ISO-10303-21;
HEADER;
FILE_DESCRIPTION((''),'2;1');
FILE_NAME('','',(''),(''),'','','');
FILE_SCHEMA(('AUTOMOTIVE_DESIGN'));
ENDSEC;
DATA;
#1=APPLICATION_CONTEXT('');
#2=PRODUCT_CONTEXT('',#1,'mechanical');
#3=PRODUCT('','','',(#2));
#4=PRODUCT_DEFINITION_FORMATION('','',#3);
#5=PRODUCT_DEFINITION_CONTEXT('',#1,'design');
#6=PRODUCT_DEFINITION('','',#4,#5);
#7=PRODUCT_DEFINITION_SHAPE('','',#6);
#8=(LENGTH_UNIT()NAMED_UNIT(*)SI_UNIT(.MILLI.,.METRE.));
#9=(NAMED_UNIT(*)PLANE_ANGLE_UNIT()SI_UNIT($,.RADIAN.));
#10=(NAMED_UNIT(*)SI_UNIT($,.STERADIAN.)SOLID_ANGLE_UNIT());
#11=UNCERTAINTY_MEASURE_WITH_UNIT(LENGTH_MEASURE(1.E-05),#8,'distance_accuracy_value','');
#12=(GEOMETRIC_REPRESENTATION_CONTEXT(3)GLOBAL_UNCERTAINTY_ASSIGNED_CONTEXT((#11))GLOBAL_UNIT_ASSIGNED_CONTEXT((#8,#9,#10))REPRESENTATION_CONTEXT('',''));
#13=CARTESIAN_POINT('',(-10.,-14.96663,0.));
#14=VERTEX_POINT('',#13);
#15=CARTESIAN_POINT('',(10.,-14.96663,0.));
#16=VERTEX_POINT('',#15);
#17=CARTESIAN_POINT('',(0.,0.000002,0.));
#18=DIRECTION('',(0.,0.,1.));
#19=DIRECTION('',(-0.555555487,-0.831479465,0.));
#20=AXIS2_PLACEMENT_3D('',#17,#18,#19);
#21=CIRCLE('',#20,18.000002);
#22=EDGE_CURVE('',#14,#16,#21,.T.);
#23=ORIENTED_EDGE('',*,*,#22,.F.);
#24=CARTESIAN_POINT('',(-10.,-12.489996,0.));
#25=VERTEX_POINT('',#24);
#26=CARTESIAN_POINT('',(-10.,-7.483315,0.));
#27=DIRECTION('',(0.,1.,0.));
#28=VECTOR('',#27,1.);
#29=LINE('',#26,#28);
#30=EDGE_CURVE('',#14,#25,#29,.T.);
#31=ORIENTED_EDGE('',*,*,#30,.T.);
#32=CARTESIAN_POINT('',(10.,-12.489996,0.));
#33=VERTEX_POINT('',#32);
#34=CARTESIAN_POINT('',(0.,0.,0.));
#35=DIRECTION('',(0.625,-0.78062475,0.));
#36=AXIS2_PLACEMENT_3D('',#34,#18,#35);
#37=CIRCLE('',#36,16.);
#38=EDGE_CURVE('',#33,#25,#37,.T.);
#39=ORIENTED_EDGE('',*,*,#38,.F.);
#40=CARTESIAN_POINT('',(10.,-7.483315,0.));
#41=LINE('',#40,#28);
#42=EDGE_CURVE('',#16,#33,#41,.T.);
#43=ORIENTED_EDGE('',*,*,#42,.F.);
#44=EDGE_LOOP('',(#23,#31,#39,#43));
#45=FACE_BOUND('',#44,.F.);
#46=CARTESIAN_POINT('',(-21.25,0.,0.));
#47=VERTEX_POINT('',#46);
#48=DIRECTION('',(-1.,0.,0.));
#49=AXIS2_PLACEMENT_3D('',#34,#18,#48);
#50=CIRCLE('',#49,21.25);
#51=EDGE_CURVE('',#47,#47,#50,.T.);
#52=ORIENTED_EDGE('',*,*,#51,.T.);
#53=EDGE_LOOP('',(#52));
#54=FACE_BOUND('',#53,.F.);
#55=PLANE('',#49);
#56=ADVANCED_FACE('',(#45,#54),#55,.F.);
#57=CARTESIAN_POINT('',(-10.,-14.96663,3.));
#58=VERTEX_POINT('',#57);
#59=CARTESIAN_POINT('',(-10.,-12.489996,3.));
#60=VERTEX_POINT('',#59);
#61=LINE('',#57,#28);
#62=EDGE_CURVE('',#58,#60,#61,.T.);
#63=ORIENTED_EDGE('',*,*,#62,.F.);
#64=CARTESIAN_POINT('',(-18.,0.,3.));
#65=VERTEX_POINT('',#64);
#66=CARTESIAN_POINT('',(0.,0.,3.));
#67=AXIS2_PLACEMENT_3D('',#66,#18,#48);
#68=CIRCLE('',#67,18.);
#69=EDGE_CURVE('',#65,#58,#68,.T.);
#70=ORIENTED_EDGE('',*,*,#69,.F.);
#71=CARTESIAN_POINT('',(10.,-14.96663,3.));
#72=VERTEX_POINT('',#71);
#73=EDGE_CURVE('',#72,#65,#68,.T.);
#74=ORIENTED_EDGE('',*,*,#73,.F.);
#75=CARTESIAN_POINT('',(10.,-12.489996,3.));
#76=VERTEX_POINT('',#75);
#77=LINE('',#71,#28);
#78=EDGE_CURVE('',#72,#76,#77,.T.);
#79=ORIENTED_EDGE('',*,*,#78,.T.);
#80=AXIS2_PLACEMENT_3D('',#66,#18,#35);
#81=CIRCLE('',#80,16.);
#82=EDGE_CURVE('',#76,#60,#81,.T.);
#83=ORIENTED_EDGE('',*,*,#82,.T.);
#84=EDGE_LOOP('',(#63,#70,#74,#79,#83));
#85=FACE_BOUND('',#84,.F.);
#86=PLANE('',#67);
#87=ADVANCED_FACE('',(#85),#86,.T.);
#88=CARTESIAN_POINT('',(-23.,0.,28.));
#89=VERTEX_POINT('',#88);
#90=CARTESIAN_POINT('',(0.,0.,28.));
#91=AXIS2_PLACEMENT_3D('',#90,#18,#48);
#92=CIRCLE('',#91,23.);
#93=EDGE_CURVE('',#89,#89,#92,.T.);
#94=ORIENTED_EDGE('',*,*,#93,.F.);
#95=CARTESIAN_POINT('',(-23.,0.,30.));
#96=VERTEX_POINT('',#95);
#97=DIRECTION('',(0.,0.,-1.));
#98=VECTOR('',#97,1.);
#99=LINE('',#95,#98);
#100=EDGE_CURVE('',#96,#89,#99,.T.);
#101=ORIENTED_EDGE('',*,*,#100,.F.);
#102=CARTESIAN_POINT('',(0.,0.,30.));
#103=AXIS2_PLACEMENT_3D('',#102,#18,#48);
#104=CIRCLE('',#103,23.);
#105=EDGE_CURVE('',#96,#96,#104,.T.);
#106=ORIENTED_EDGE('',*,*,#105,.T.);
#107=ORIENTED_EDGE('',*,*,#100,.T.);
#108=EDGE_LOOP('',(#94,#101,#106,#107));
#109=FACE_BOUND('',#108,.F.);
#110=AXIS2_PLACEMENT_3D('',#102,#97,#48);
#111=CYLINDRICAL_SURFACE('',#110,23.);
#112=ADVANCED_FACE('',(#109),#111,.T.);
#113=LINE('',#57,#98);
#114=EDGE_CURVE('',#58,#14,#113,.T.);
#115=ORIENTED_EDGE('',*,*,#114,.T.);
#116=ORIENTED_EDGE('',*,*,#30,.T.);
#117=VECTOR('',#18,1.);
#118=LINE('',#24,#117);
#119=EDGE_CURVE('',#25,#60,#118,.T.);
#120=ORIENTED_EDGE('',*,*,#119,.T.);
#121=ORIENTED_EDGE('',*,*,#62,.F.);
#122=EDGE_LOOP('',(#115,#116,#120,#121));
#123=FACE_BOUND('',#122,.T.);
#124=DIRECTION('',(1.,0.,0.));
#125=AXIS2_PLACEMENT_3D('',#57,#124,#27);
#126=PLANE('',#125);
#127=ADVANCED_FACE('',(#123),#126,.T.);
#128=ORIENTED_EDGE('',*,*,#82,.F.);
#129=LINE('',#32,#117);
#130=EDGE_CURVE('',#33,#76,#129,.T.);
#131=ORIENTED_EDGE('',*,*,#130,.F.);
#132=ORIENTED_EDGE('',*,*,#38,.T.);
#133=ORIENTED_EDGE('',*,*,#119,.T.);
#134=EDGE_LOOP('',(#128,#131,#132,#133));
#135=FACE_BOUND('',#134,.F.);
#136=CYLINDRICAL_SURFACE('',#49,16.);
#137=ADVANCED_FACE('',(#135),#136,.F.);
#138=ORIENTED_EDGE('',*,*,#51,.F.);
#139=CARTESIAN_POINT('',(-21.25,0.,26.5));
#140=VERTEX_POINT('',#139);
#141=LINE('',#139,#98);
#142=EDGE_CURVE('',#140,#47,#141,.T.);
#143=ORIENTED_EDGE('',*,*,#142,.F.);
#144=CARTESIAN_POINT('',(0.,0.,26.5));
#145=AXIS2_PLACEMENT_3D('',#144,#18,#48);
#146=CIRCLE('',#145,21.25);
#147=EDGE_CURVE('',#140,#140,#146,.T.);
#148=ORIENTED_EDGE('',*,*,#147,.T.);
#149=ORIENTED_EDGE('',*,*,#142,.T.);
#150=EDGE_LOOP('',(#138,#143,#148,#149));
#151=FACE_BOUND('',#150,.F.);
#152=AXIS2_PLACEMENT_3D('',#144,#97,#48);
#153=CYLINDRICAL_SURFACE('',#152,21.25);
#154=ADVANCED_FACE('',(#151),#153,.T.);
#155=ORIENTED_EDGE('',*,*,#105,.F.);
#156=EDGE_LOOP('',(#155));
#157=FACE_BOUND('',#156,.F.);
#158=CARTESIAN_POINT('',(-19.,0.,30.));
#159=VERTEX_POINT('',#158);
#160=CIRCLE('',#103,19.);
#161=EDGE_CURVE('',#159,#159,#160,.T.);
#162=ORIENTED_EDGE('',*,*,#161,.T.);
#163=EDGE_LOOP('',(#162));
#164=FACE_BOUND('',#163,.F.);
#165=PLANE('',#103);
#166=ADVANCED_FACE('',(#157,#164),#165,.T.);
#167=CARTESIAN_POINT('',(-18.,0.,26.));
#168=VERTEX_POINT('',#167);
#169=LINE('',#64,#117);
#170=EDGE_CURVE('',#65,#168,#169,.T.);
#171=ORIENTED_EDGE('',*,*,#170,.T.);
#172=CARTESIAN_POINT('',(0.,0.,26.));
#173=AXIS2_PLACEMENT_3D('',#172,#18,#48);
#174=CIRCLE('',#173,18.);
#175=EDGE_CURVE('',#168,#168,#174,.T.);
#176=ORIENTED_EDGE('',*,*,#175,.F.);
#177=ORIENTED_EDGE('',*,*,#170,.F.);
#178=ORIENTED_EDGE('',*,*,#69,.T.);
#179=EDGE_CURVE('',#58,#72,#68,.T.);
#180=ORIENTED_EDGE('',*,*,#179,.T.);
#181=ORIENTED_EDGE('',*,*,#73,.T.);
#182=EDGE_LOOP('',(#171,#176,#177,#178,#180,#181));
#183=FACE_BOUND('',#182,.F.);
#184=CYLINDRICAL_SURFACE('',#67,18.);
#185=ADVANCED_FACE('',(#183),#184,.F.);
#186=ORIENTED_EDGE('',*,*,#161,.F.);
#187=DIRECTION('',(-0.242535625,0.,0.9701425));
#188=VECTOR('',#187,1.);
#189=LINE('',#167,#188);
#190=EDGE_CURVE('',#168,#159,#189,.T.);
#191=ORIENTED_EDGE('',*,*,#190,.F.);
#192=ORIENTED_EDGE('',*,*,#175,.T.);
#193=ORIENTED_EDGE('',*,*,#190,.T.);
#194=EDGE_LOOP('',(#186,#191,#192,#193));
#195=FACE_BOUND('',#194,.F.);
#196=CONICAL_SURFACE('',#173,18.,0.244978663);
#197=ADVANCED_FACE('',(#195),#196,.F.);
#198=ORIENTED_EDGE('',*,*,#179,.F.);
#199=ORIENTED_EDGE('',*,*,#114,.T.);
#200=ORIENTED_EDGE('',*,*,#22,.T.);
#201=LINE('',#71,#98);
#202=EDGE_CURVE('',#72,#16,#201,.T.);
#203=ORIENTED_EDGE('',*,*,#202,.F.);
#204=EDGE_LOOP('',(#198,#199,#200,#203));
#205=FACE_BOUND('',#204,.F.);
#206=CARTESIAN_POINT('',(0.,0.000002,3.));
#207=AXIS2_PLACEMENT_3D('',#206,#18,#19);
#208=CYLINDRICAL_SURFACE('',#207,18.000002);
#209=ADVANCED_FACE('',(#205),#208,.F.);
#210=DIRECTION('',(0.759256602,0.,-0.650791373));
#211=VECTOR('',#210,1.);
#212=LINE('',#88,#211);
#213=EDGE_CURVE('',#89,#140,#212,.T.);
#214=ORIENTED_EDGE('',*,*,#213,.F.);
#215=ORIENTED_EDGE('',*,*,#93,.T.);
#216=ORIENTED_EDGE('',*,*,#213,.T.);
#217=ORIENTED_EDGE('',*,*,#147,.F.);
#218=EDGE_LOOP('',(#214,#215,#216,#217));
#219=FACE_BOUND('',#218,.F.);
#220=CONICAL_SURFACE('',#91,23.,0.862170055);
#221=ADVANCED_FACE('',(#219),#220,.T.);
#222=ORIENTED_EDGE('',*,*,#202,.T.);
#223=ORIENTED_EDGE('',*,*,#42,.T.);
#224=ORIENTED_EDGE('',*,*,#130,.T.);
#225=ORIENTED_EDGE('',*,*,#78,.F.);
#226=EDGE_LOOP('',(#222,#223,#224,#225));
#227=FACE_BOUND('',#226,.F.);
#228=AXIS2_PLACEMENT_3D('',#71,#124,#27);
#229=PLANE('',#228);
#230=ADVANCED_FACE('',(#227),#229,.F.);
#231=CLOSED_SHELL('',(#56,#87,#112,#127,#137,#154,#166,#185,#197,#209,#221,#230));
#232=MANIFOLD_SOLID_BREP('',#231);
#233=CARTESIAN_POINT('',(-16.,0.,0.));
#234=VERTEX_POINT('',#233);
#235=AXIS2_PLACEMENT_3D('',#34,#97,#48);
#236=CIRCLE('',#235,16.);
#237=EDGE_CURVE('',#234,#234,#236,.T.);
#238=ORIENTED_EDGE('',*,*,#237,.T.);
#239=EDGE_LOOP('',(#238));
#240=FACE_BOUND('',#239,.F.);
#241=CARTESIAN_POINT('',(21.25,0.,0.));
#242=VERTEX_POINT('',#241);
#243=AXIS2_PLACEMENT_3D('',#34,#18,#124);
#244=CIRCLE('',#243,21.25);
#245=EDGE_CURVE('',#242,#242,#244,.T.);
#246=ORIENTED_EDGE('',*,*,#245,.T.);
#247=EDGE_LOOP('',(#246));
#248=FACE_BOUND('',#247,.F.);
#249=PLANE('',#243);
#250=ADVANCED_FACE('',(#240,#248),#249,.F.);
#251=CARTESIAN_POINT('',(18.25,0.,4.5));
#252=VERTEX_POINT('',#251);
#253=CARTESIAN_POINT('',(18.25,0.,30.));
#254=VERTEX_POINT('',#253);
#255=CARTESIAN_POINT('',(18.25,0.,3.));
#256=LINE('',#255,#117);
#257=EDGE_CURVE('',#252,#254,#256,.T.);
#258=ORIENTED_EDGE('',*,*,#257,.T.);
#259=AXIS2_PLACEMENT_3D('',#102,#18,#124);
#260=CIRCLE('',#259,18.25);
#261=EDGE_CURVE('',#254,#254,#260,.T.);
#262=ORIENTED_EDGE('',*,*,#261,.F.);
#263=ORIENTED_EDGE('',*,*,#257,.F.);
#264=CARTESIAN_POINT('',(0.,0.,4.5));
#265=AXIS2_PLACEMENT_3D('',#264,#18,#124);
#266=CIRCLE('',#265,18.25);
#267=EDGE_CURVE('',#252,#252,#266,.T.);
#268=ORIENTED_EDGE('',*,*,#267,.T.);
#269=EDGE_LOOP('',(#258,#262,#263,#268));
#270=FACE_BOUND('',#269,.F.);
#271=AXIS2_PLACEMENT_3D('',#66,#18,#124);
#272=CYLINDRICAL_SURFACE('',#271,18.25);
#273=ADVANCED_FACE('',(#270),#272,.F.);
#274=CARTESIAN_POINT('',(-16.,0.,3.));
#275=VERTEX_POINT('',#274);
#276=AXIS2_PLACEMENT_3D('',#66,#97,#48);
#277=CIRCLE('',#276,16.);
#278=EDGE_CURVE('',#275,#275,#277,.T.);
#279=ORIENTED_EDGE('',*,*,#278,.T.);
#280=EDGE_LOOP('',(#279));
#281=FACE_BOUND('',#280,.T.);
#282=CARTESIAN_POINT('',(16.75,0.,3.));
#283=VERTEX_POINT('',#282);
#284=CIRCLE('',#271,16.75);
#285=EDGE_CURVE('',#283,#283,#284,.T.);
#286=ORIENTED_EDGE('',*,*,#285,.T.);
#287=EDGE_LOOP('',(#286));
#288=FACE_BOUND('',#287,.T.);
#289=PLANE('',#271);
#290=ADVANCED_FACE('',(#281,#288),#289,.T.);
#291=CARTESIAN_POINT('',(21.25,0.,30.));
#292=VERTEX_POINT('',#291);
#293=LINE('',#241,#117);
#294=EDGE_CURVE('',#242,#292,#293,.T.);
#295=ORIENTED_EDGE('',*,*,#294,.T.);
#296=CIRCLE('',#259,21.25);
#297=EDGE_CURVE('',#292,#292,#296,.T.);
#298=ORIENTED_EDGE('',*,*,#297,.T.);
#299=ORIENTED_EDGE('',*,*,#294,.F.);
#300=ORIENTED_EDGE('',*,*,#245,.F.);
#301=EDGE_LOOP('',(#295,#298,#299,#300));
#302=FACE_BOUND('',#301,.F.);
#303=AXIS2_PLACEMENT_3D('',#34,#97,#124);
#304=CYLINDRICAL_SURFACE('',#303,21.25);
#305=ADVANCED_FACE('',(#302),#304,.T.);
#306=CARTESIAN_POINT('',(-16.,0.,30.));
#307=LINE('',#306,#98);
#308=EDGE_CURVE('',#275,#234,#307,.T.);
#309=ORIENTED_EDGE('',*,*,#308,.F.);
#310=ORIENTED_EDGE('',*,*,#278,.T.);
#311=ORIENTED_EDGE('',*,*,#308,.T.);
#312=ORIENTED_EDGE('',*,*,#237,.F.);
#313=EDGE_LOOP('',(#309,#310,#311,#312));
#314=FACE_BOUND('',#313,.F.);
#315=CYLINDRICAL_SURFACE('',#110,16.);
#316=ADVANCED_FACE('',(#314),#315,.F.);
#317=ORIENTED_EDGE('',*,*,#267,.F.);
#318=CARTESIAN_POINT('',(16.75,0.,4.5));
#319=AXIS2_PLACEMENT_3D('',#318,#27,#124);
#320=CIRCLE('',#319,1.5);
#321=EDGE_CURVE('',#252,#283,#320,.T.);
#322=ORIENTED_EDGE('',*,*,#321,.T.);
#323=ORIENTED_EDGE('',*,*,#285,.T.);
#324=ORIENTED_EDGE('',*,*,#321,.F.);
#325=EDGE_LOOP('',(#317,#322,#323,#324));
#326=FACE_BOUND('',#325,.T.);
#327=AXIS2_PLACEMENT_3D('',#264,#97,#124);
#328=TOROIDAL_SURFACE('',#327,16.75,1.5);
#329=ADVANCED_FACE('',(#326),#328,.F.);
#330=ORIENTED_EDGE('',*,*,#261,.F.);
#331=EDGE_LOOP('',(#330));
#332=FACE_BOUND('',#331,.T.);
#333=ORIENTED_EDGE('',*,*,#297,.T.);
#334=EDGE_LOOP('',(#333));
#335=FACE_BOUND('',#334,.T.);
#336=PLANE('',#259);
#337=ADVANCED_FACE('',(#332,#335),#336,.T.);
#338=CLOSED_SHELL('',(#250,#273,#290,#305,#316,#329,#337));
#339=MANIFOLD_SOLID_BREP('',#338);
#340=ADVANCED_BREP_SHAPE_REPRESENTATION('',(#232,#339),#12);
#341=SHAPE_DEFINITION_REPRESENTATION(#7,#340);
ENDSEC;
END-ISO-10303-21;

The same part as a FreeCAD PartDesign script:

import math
import FreeCAD as App
import Part
import Sketcher

V = App.Vector


def edges_at(feature, points):
    """Names of the edges that pass closest to the given points."""
    edges = feature.Shape.Edges
    near = lambda p: min(range(len(edges)), key=lambda i: edges[i].distToShape(Part.Vertex(*p))[0])
    return sorted({f"Edge{near(p) + 1}" for p in points})


def add_polygon(sketch, points):
    """Adds a closed chain of lines whose ends are joined by coincident constraints."""
    first, n = sketch.GeometryCount, len(points)
    for a, b in zip(points, points[1:] + points[:1]):
        sketch.addGeometry(Part.LineSegment(App.Vector(*a, 0), App.Vector(*b, 0)), False)
    for i in range(n):
        sketch.addConstraint(Sketcher.Constraint("Coincident", first + i, 2, first + (i + 1) % n, 1))

doc = App.newDocument("Part")
body = doc.addObject("PartDesign::Body", "Body")

# Sketch on XY plane
sketch1 = doc.addObject("Sketcher::SketchObject", "Sketch")
body.addObject(sketch1)
sketch1.AttachmentSupport = (doc.XY_Plane, [""])
sketch1.MapMode = "FlatFace"
sketch1.addGeometry(Part.Circle(V(0, 0, 0), V(0, 0, 1), 21.25), False)
sketch1.addConstraint(Sketcher.Constraint("Coincident", 0, 3, -1, 1))
sketch1.addConstraint(Sketcher.Constraint("Diameter", 0, 42.5))
pad1 = doc.addObject("PartDesign::Pad", "Pad")
body.addObject(pad1)
pad1.Profile = sketch1
pad1.Length = 30

# Sketch on XY plane
sketch2 = doc.addObject("Sketcher::SketchObject", "Sketch001")
body.addObject(sketch2)
sketch2.AttachmentSupport = (doc.XY_Plane, [""])
sketch2.MapMode = "FlatFace"
sketch2.AttachmentOffset = App.Placement(V(0, 0, 30), App.Rotation())
sketch2.addGeometry(Part.Circle(V(0, 0, 0), V(0, 0, 1), 16), False)
sketch2.addConstraint(Sketcher.Constraint("Coincident", 0, 3, -1, 1))
sketch2.addConstraint(Sketcher.Constraint("Diameter", 0, 32.0))
doc.recompute()
hole = doc.addObject("PartDesign::Hole", "Hole")
body.addObject(hole)
hole.Profile = sketch2
hole.ThreadType = "None"
hole.Diameter = 32
hole.DepthType = "ThroughAll"
hole.HoleCutType = "Counterbore"
hole.HoleCutDiameter = 36.5
hole.HoleCutDepth = 27
doc.recompute()

fillet = doc.addObject("PartDesign::Fillet", "Fillet")
body.addObject(fillet)
fillet.Base = (hole, edges_at(hole, [(-18.25, 0, 3)]))
fillet.Radius = 1.5
body2 = doc.addObject("PartDesign::Body", "Body001")

# Sketch on XZ plane
sketch3 = doc.addObject("Sketcher::SketchObject", "Sketch002")
body2.addObject(sketch3)
sketch3.AttachmentSupport = (doc.getObject("XZ_Plane001"), [""])
sketch3.MapMode = "FlatFace"
add_polygon(sketch3, [(-21.25, 26.5), (-21.25, 0), (-16, 0), (-16, 3), (-18, 3), (-18, 26), (-19, 30), (-23, 30), (-23, 28)])  # lines 0-8
sketch3.addConstraint(Sketcher.Constraint("Vertical", 0))
sketch3.addConstraint(Sketcher.Constraint("Horizontal", 1))
sketch3.addConstraint(Sketcher.Constraint("Vertical", 2))
sketch3.addConstraint(Sketcher.Constraint("Horizontal", 3))
sketch3.addConstraint(Sketcher.Constraint("Vertical", 4))
sketch3.addConstraint(Sketcher.Constraint("Horizontal", 6))
sketch3.addConstraint(Sketcher.Constraint("Vertical", 7))
sketch3.addConstraint(Sketcher.Constraint("PointOnObject", 0, 2, -1))
sketch3.addConstraint(Sketcher.Constraint("Equal", 3, 7))
sketch3.addConstraint(Sketcher.Constraint("DistanceX", 3, 2, 3, 1, 2.0))
sketch3.addConstraint(Sketcher.Constraint("DistanceX", 6, 2, 6, 1, 4.0))
sketch3.addConstraint(Sketcher.Constraint("DistanceY", 2, 1, 2, 2, 3.0))
sketch3.addConstraint(Sketcher.Constraint("DistanceY", 4, 1, 4, 2, 23.0))
sketch3.addConstraint(Sketcher.Constraint("DistanceY", 0, 2, 0, 1, 26.5))
sketch3.addConstraint(Sketcher.Constraint("DistanceX", 1, 2, -1, 1, 16.0))
sketch3.addConstraint(Sketcher.Constraint("DistanceX", 5, 2, -1, 1, 19.0))
sketch3.addConstraint(Sketcher.Constraint("DistanceY", -1, 1, 5, 2, 30.0))
sketch3.addConstraint(Sketcher.Constraint("DistanceX", 1, 1, 1, 2, 5.25))
revolution = doc.addObject("PartDesign::Revolution", "Revolution")
body2.addObject(revolution)
revolution.Profile = sketch3
revolution.ReferenceAxis = (sketch3, ["V_Axis"])
revolution.Angle = 360

# Sketch on XY plane
sketch4 = doc.addObject("Sketcher::SketchObject", "Sketch003")
body2.addObject(sketch4)
sketch4.AttachmentSupport = (doc.getObject("XY_Plane001"), [""])
sketch4.MapMode = "FlatFace"
sketch4.AttachmentOffset = App.Placement(V(0, 0, 3), App.Rotation())
sketch4.addGeometry(Part.ArcOfCircle(Part.Circle(V(0, 0.000002, 0), V(0, 0, 1), 18.000002), math.radians(-123.748984), math.radians(-56.251016)), False)
sketch4.addGeometry(Part.LineSegment(V(10, -14.96663, 0), V(10, 0, 0)), False)
sketch4.addGeometry(Part.LineSegment(V(10, 0, 0), V(-10, 0, 0)), False)
sketch4.addGeometry(Part.LineSegment(V(-10, 0, 0), V(-10, -14.96663, 0)), False)
sketch4.addConstraint(Sketcher.Constraint("Coincident", 0, 2, 1, 1))
sketch4.addConstraint(Sketcher.Constraint("Coincident", 1, 2, 2, 1))
sketch4.addConstraint(Sketcher.Constraint("Coincident", 2, 2, 3, 1))
sketch4.addConstraint(Sketcher.Constraint("Coincident", 3, 2, 0, 1))
sketch4.addConstraint(Sketcher.Constraint("Vertical", 1))
sketch4.addConstraint(Sketcher.Constraint("Horizontal", 2))
sketch4.addConstraint(Sketcher.Constraint("Vertical", 3))
sketch4.addConstraint(Sketcher.Constraint("Coincident", 0, 3, -1, 1))
sketch4.addConstraint(Sketcher.Constraint("Symmetric", 1, 2, 2, 2, -1, 1))
sketch4.addConstraint(Sketcher.Constraint("DistanceX", 2, 2, 2, 1, 20.0))
sketch4.addConstraint(Sketcher.Constraint("Radius", 0, 18.000002))
pocket1 = doc.addObject("PartDesign::Pocket", "Pocket")
body2.addObject(pocket1)
pocket1.Profile = sketch4
pocket1.Length = 5

doc.recompute()
